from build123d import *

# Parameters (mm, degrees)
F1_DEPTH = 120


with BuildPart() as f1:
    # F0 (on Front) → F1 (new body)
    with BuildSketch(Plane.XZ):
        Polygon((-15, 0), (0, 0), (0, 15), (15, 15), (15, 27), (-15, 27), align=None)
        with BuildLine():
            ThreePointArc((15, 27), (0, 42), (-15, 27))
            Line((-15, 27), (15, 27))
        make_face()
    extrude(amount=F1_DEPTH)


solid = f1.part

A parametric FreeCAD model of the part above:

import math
import FreeCAD as App
import Part
import Sketcher
Q = App.Units.Quantity

doc = App.newDocument("Part")
body = doc.addObject("PartDesign::Body", "Body")

# Sketch on XZ plane
sketch1 = body.newObject("Sketcher::SketchObject", "Sketch")
sketch1.AttachmentSupport = (doc.getObject("XZ_Plane"), [""])
sketch1.MapMode = "FlatFace"
sketch1.addGeometry(Part.LineSegment(App.Vector(-15, 0, 0), App.Vector(0, 0, 0)), False)
sketch1.addGeometry(Part.LineSegment(App.Vector(0, 0, 0), App.Vector(0, 15, 0)), False)
sketch1.addGeometry(Part.LineSegment(App.Vector(0, 15, 0), App.Vector(15, 15, 0)), False)
sketch1.addGeometry(Part.LineSegment(App.Vector(15, 15, 0), App.Vector(15, 27, 0)), False)
sketch1.addGeometry(Part.ArcOfCircle(Part.Circle(App.Vector(0, 27, 0), App.Vector(0, 0, 1), 15), math.radians(0), math.radians(180)), False)
sketch1.addGeometry(Part.LineSegment(App.Vector(-15, 27, 0), App.Vector(-15, 0, 0)), False)
sketch1.addConstraint(Sketcher.Constraint("Coincident", 0, 2, 1, 1))
sketch1.addConstraint(Sketcher.Constraint("Coincident", 1, 2, 2, 1))
sketch1.addConstraint(Sketcher.Constraint("Coincident", 2, 2, 3, 1))
sketch1.addConstraint(Sketcher.Constraint("Tangent", 3, 2, 4, 1))
sketch1.addConstraint(Sketcher.Constraint("Tangent", 4, 2, 5, 1))
sketch1.addConstraint(Sketcher.Constraint("Coincident", 5, 2, 0, 1))
sketch1.addConstraint(Sketcher.Constraint("Horizontal", 0))
sketch1.addConstraint(Sketcher.Constraint("Vertical", 1))
sketch1.addConstraint(Sketcher.Constraint("Horizontal", 2))
sketch1.addConstraint(Sketcher.Constraint("Vertical", 3))
sketch1.addConstraint(Sketcher.Constraint("Vertical", 5))
sketch1.addConstraint(Sketcher.Constraint("Coincident", 0, 2, -1, 1))
sketch1.addConstraint(Sketcher.Constraint("PointOnObject", 4, 3, -2))
sketch1.addConstraint(Sketcher.Constraint("Equal", 2, 1))
sketch1.addConstraint(Sketcher.Constraint("Radius", 4, Q("15 mm")))
sketch1.addConstraint(Sketcher.Constraint("DistanceY", 3, 1, 3, 2, Q("12 mm")))
pad1 = body.newObject("PartDesign::Pad", "Pad")
pad1.Profile = sketch1
pad1.Length = 120

doc.recompute()
